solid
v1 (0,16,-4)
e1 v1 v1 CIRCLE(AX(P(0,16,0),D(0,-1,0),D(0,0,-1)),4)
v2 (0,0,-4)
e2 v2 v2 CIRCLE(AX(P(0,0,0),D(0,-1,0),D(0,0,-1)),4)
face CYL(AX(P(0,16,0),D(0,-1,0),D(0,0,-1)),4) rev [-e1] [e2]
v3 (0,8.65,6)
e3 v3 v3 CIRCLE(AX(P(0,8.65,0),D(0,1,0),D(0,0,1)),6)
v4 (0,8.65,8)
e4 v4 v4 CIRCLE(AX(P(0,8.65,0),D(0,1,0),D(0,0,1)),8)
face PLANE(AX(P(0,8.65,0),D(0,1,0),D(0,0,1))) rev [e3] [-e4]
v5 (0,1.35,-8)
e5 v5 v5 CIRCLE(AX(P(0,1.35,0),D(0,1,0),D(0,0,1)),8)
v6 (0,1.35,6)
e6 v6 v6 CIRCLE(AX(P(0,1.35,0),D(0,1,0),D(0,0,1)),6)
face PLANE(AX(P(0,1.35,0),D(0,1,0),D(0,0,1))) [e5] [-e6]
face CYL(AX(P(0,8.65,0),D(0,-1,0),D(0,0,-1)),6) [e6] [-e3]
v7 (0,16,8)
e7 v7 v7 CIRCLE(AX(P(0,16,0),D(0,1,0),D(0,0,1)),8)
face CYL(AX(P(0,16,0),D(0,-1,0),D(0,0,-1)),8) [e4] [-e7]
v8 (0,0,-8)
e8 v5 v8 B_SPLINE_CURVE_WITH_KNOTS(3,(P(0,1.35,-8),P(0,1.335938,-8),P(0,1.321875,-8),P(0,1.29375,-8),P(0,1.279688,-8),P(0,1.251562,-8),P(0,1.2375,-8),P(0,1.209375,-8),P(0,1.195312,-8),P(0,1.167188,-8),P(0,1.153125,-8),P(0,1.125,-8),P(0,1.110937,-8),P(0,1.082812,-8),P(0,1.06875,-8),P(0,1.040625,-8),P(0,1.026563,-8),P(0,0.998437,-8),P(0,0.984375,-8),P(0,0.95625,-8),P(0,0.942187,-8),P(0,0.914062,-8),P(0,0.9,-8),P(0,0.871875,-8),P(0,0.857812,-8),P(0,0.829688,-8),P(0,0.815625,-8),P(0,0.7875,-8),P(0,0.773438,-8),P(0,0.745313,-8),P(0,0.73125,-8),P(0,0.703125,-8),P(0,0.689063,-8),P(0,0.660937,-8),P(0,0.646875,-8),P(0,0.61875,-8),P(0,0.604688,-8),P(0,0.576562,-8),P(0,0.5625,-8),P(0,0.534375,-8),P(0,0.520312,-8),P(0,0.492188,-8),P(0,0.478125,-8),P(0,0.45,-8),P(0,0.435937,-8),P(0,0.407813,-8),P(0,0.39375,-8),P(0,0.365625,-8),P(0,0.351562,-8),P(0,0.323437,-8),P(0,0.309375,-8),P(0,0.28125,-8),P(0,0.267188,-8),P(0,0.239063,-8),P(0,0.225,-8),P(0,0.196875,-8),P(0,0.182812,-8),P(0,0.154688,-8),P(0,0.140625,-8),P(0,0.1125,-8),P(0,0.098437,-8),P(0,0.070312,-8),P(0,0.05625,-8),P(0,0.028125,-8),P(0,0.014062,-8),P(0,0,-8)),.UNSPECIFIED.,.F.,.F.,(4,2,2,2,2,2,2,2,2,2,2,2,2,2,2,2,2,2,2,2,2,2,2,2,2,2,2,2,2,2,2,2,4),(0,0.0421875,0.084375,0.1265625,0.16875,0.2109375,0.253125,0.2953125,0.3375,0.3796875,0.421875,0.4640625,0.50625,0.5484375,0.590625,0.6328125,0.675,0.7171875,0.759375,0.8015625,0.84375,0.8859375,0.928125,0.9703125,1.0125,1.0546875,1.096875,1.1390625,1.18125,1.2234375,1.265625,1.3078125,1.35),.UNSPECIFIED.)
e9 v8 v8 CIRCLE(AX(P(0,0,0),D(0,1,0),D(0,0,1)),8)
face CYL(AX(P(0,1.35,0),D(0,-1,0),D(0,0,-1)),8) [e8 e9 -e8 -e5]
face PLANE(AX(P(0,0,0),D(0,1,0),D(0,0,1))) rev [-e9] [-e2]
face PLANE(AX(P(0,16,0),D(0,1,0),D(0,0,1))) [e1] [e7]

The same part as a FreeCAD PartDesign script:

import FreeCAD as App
import Part
import Sketcher
Q = App.Units.Quantity

doc = App.newDocument("Part")
body = doc.addObject("PartDesign::Body", "Body")

# Sketch on XZ plane
sketch1 = body.newObject("Sketcher::SketchObject", "Sketch")
sketch1.AttachmentSupport = (doc.getObject("XZ_Plane"), [""])
sketch1.MapMode = "FlatFace"
sketch1.addGeometry(Part.Circle(App.Vector(0, 0, 0), App.Vector(0, 0, 1), 8), False)
sketch1.addConstraint([
    Sketcher.Constraint("Coincident", 0, 3, -1, 1),
    Sketcher.Constraint("Diameter", 0, Q("16 mm")),
])
pad1 = body.newObject("PartDesign::Pad", "Pad")
pad1.Profile = sketch1
pad1.Length = 1.35
pad1.Reversed = True

# Sketch on XZ plane
sketch2 = body.newObject("Sketcher::SketchObject", "Sketch001")
sketch2.AttachmentSupport = (doc.getObject("XZ_Plane"), [""])
sketch2.MapMode = "FlatFace"
sketch2.AttachmentOffset = App.Placement(App.Vector(0, 0, -1.35), App.Rotation())
sketch2.addGeometry(Part.Circle(App.Vector(0, 0, 0), App.Vector(0, 0, 1), 6), False)
sketch2.addConstraint([
    Sketcher.Constraint("Coincident", 0, 3, -1, 1),
    Sketcher.Constraint("Diameter", 0, Q("12 mm")),
])
pad2 = body.newObject("PartDesign::Pad", "Pad001")
pad2.Profile = sketch2
pad2.Length = 7.3
pad2.Reversed = True

# Sketch on XZ plane
sketch3 = body.newObject("Sketcher::SketchObject", "Sketch002")
sketch3.AttachmentSupport = (doc.getObject("XZ_Plane"), [""])
sketch3.MapMode = "FlatFace"
sketch3.AttachmentOffset = App.Placement(App.Vector(0, 0, -8.65), App.Rotation())
sketch3.addGeometry(Part.Circle(App.Vector(0, 0, 0), App.Vector(0, 0, 1), 8), False)
sketch3.addConstraint([
    Sketcher.Constraint("Coincident", 0, 3, -1, 1),
    Sketcher.Constraint("Diameter", 0, Q("16 mm")),
])
pad3 = body.newObject("PartDesign::Pad", "Pad002")
pad3.Profile = sketch3
pad3.Length = 7.35
pad3.Reversed = True

# Sketch on XZ plane
sketch4 = body.newObject("Sketcher::SketchObject", "Sketch003")
sketch4.AttachmentSupport = (doc.getObject("XZ_Plane"), [""])
sketch4.MapMode = "FlatFace"
sketch4.addGeometry(Part.Circle(App.Vector(0, 0, 0), App.Vector(0, 0, 1), 4), False)
sketch4.addConstraint([
    Sketcher.Constraint("Coincident", 0, 3, -1, 1),
    Sketcher.Constraint("Diameter", 0, Q("8 mm")),
])
pocket1 = body.newObject("PartDesign::Pocket", "Pocket")
pocket1.Profile = sketch4
pocket1.Type = "ThroughAll"

doc.recompute()
